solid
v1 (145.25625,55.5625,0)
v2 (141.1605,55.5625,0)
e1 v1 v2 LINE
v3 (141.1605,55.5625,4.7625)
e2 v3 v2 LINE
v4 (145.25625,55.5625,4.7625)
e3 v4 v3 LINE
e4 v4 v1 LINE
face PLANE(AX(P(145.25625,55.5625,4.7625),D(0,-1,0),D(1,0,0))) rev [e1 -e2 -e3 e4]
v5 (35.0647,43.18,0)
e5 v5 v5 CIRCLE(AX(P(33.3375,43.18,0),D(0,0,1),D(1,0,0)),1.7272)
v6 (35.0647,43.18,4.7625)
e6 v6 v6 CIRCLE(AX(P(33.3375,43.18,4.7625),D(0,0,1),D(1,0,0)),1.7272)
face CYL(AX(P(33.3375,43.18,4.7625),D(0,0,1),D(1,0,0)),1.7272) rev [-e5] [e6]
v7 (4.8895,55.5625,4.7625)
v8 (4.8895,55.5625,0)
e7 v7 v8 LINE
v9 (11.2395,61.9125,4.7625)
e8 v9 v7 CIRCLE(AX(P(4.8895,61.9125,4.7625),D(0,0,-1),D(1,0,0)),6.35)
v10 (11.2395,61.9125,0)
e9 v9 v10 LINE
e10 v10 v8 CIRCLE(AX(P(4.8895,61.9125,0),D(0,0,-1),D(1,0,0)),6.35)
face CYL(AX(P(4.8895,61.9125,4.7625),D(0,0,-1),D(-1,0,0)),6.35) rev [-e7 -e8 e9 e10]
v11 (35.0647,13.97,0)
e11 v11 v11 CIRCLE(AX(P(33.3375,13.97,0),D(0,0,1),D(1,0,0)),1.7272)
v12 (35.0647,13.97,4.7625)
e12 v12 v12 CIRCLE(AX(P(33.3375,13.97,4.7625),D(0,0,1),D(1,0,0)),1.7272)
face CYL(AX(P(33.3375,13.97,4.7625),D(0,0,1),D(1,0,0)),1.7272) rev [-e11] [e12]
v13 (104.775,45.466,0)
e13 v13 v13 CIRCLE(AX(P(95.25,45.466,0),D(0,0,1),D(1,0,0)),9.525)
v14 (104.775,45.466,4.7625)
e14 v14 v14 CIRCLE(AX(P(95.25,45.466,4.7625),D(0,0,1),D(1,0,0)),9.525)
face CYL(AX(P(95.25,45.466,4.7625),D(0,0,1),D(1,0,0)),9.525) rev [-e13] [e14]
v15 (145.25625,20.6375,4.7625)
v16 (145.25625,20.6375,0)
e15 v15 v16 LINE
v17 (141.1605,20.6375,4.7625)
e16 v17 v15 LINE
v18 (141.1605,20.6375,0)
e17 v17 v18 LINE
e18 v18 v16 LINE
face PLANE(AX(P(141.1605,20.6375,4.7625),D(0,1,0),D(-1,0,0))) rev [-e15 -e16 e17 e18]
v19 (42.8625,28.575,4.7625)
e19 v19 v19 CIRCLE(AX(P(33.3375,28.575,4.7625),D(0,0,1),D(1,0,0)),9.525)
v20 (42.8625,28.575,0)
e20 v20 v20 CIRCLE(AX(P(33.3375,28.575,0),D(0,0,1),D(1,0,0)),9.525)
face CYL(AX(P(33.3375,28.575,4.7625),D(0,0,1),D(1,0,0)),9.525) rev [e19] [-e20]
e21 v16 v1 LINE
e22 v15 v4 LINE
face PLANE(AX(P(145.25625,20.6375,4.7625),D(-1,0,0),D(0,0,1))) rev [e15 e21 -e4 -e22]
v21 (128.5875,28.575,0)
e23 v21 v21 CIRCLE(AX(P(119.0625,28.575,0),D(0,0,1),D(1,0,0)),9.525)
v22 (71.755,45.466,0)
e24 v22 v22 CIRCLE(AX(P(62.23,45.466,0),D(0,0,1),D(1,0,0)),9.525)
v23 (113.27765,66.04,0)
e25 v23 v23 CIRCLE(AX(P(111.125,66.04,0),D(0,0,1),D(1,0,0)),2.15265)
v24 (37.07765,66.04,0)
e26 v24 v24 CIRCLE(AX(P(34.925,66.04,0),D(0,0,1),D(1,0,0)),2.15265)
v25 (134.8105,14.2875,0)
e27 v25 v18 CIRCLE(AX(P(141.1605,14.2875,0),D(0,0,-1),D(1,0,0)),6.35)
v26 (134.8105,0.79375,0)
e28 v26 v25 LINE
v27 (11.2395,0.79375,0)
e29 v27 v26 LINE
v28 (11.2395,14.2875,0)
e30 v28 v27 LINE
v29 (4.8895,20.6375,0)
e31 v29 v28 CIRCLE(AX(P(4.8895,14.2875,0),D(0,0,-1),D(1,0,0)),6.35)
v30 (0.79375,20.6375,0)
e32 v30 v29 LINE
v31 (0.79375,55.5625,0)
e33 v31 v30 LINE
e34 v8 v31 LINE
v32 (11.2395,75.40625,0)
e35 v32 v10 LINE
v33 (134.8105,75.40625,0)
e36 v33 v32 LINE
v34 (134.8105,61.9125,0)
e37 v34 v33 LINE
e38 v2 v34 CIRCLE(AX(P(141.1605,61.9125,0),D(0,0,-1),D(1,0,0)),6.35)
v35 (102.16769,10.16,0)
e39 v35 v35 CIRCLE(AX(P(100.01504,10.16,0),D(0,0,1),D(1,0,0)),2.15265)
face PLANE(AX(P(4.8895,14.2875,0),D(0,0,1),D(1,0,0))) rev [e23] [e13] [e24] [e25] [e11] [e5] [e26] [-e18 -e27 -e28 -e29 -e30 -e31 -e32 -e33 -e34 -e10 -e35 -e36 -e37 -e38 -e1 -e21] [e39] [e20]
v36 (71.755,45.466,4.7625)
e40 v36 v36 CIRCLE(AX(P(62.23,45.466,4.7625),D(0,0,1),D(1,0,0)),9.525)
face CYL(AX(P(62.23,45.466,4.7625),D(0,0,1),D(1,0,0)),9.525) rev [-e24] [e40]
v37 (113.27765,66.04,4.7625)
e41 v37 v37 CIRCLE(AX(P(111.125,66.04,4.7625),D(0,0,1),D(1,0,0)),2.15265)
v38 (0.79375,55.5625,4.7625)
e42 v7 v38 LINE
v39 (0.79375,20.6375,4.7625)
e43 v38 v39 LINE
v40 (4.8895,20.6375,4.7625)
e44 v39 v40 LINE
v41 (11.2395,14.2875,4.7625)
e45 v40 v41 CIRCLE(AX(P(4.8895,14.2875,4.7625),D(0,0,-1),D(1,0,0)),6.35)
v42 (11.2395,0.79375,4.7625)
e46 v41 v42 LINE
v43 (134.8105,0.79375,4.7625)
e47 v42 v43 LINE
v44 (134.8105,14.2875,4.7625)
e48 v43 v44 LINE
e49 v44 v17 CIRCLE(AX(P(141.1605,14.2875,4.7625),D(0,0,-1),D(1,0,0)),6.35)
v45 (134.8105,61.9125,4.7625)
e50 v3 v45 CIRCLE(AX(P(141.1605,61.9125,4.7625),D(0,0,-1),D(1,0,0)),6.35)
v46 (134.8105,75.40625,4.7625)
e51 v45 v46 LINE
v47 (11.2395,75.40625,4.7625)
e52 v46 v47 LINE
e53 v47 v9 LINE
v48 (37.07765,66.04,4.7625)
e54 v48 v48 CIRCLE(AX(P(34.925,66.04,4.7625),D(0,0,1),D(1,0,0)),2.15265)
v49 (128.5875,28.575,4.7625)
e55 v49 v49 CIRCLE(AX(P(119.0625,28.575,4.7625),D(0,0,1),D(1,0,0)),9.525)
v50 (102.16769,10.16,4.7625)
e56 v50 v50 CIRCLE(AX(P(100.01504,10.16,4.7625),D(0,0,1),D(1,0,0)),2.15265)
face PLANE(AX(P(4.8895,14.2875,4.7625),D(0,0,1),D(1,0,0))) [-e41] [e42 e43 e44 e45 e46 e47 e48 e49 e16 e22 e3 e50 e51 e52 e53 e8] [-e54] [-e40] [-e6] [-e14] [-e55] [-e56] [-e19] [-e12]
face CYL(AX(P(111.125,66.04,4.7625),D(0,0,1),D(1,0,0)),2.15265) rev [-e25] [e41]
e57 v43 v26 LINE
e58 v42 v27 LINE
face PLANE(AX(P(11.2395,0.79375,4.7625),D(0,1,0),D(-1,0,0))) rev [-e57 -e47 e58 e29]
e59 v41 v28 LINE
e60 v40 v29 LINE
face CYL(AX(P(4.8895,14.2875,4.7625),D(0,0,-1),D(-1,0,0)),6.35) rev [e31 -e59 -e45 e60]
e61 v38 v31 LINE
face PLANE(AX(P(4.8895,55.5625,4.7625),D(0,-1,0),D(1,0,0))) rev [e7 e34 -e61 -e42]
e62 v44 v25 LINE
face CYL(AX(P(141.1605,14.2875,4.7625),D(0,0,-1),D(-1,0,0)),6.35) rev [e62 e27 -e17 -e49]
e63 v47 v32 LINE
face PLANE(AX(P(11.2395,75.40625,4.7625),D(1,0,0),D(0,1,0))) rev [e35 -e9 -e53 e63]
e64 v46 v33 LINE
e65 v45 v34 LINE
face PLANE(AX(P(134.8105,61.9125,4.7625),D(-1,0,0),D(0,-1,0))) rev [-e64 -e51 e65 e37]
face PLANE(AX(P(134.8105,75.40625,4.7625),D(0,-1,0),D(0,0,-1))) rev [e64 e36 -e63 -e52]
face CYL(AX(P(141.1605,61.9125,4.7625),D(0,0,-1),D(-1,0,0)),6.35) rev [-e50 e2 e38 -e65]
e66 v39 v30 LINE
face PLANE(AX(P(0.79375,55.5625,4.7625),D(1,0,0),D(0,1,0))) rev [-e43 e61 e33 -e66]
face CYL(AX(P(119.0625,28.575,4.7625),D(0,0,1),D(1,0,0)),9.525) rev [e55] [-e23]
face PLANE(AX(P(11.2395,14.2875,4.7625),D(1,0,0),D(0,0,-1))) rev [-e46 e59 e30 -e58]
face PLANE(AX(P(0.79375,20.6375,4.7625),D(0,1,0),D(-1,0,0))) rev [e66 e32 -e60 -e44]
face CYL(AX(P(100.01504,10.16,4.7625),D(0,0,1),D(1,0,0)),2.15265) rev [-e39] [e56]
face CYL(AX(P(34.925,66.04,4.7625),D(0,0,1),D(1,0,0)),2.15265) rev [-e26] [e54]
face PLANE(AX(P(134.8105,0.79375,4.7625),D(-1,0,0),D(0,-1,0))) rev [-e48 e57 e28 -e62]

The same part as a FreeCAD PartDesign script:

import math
import FreeCAD as App
import Part
import Sketcher
from FreeCAD import Vector
Q = App.Units.Quantity

doc = App.newDocument("Part")
body = doc.addObject("PartDesign::Body", "Body")

# Sketch on XY plane
sketch1 = body.newObject("Sketcher::SketchObject", "Sketch")
sketch1.AttachmentSupport = (doc.getObject("XY_Plane"), [""])
sketch1.MapMode = "FlatFace"
sketch1.addGeometry(Part.LineSegment(Vector(11.2, 14.3, 0), Vector(11.2, 0.8, 0)), False)
sketch1.addGeometry(Part.LineSegment(Vector(11.2, 0.8, 0), Vector(134.8, 0.8, 0)), False)
sketch1.addGeometry(Part.LineSegment(Vector(134.8, 0.8, 0), Vector(134.8, 14.3, 0)), False)
sketch1.addGeometry(Part.ArcOfCircle(Part.Circle(Vector(141.2, 14.3, 0), Vector(0, 0, 1), 6.3), math.radians(90), math.radians(180)), False)
sketch1.addGeometry(Part.LineSegment(Vector(141.2, 20.6, 0), Vector(145.3, 20.6, 0)), False)
sketch1.addGeometry(Part.LineSegment(Vector(145.3, 20.6, 0), Vector(145.3, 55.6, 0)), False)
sketch1.addGeometry(Part.LineSegment(Vector(145.3, 55.6, 0), Vector(141.2, 55.6, 0)), False)
sketch1.addGeometry(Part.ArcOfCircle(Part.Circle(Vector(141.2, 61.9, 0), Vector(0, 0, 1), 6.3), math.radians(180), math.radians(270)), False)
sketch1.addGeometry(Part.LineSegment(Vector(134.8, 61.9, 0), Vector(134.8, 75.4, 0)), False)
sketch1.addGeometry(Part.LineSegment(Vector(134.8, 75.4, 0), Vector(11.2, 75.4, 0)), False)
sketch1.addGeometry(Part.LineSegment(Vector(11.2, 75.4, 0), Vector(11.2, 61.9, 0)), False)
sketch1.addGeometry(Part.ArcOfCircle(Part.Circle(Vector(4.9, 61.9, 0), Vector(0, 0, 1), 6.3), math.radians(-90), math.radians(0)), False)
sketch1.addGeometry(Part.LineSegment(Vector(4.9, 55.6, 0), Vector(0.8, 55.6, 0)), False)
sketch1.addGeometry(Part.LineSegment(Vector(0.8, 55.6, 0), Vector(0.8, 20.6, 0)), False)
sketch1.addGeometry(Part.LineSegment(Vector(0.8, 20.6, 0), Vector(4.9, 20.6, 0)), False)
sketch1.addGeometry(Part.ArcOfCircle(Part.Circle(Vector(4.9, 14.3, 0), Vector(0, 0, 1), 6.3), math.radians(0), math.radians(90)), False)
sketch1.addConstraint(Sketcher.Constraint("Coincident", 0, 2, 1, 1))
sketch1.addConstraint(Sketcher.Constraint("Coincident", 1, 2, 2, 1))
sketch1.addConstraint(Sketcher.Constraint("Tangent", 2, 2, 3, 2))
sketch1.addConstraint(Sketcher.Constraint("Tangent", 3, 1, 4, 1))
sketch1.addConstraint(Sketcher.Constraint("Coincident", 4, 2, 5, 1))
sketch1.addConstraint(Sketcher.Constraint("Coincident", 5, 2, 6, 1))
sketch1.addConstraint(Sketcher.Constraint("Tangent", 6, 2, 7, 2))
sketch1.addConstraint(Sketcher.Constraint("Tangent", 7, 1, 8, 1))
sketch1.addConstraint(Sketcher.Constraint("Coincident", 8, 2, 9, 1))
sketch1.addConstraint(Sketcher.Constraint("Coincident", 9, 2, 10, 1))
sketch1.addConstraint(Sketcher.Constraint("Tangent", 10, 2, 11, 2))
sketch1.addConstraint(Sketcher.Constraint("Tangent", 11, 1, 12, 1))
sketch1.addConstraint(Sketcher.Constraint("Coincident", 12, 2, 13, 1))
sketch1.addConstraint(Sketcher.Constraint("Coincident", 13, 2, 14, 1))
sketch1.addConstraint(Sketcher.Constraint("Tangent", 14, 2, 15, 2))
sketch1.addConstraint(Sketcher.Constraint("Tangent", 15, 1, 0, 1))
sketch1.addConstraint(Sketcher.Constraint("Vertical", 0))
sketch1.addConstraint(Sketcher.Constraint("Horizontal", 1))
sketch1.addConstraint(Sketcher.Constraint("Vertical", 2))
sketch1.addConstraint(Sketcher.Constraint("Horizontal", 4))
sketch1.addConstraint(Sketcher.Constraint("Vertical", 5))
sketch1.addConstraint(Sketcher.Constraint("Horizontal", 6))
sketch1.addConstraint(Sketcher.Constraint("Vertical", 8))
sketch1.addConstraint(Sketcher.Constraint("Horizontal", 9))
sketch1.addConstraint(Sketcher.Constraint("Vertical", 10))
sketch1.addConstraint(Sketcher.Constraint("Horizontal", 12))
sketch1.addConstraint(Sketcher.Constraint("Vertical", 13))
sketch1.addConstraint(Sketcher.Constraint("Horizontal", 14))
sketch1.addConstraint(Sketcher.Constraint("Equal", 3, 7))
sketch1.addConstraint(Sketcher.Constraint("Equal", 7, 11))
sketch1.addConstraint(Sketcher.Constraint("Equal", 11, 15))
sketch1.addConstraint(Sketcher.Constraint("Horizontal", 7, 3, 11, 3))
sketch1.addConstraint(Sketcher.Constraint("Horizontal", 3, 3, 15, 3))
sketch1.addConstraint(Sketcher.Constraint("Vertical", 3, 3, 7, 3))
sketch1.addConstraint(Sketcher.Constraint("Vertical", 11, 3, 15, 3))
sketch1.addConstraint(Sketcher.Constraint("Equal", 6, 12))
sketch1.addConstraint(Sketcher.Constraint("Equal", 2, 8))
sketch1.addConstraint(Sketcher.Constraint("Radius", 3, Q("0.25 in")))
sketch1.addConstraint(Sketcher.Constraint("DistanceX", 1, 1, 1, 2, Q("4.865 in")))
sketch1.addConstraint(Sketcher.Constraint("DistanceY", 0, 2, 0, 1, Q("0.53125 in")))
sketch1.addConstraint(Sketcher.Constraint("DistanceY", 5, 1, 5, 2, Q("1.375 in")))
sketch1.addConstraint(Sketcher.Constraint("DistanceY", -1, 1, 3, 3, Q("0.5625 in")))
sketch1.addConstraint(Sketcher.Constraint("DistanceX", -1, 1, 4, 2, Q("5.71875 in")))
sketch1.addConstraint(Sketcher.Constraint("DistanceX", -1, 1, 12, 2, Q("0.03125 in")))
pad1 = body.newObject("PartDesign::Pad", "Pad")
pad1.Profile = sketch1
pad1.Length = Q("0.1875 in")

# Sketch on XY plane
sketch2 = body.newObject("Sketcher::SketchObject", "Sketch001")
sketch2.AttachmentSupport = (doc.getObject("XY_Plane"), [""])
sketch2.MapMode = "FlatFace"
sketch2.AttachmentOffset = App.Placement(Vector(0, 0, 0.1875 * 25.4), App.Rotation())
sketch2.addGeometry(Part.Circle(Vector(33.3, 43.2, 0), Vector(0, 0, 1), 1.7), False)
sketch2.addGeometry(Part.Circle(Vector(33.3, 14, 0), Vector(0, 0, 1), 1.7), False)
sketch2.addConstraint(Sketcher.Constraint("Equal", 0, 1))
sketch2.addConstraint(Sketcher.Constraint("Vertical", 0, 3, 1, 3))
sketch2.addConstraint(Sketcher.Constraint("Diameter", 0, Q("0.136 in")))
sketch2.addConstraint(Sketcher.Constraint("DistanceY", -1, 1, 0, 3, Q("1.7 in")))
sketch2.addConstraint(Sketcher.Constraint("DistanceY", -1, 1, 1, 3, Q("0.55 in")))
sketch2.addConstraint(Sketcher.Constraint("DistanceX", -1, 1, 0, 3, Q("1.3125 in")))
doc.recompute()
hole = body.newObject("PartDesign::Hole", "Hole")
hole.Profile = sketch2
hole.ThreadType = "None"
hole.Diameter = Q("0.136 in")
hole.DepthType = "ThroughAll"

# Sketch on XY plane
sketch3 = body.newObject("Sketcher::SketchObject", "Sketch002")
sketch3.AttachmentSupport = (doc.getObject("XY_Plane"), [""])
sketch3.MapMode = "FlatFace"
sketch3.AttachmentOffset = App.Placement(Vector(0, 0, 0.1875 * 25.4), App.Rotation())
sketch3.addGeometry(Part.Circle(Vector(34.9, 66, 0), Vector(0, 0, 1), 2.2), False)
sketch3.addGeometry(Part.Circle(Vector(111.1, 66, 0), Vector(0, 0, 1), 2.2), False)
sketch3.addGeometry(Part.Circle(Vector(100, 10.2, 0), Vector(0, 0, 1), 2.2), False)
sketch3.addConstraint(Sketcher.Constraint("Equal", 0, 1))
sketch3.addConstraint(Sketcher.Constraint("Equal", 1, 2))
sketch3.addConstraint(Sketcher.Constraint("Horizontal", 0, 3, 1, 3))
sketch3.addConstraint(Sketcher.Constraint("DistanceX", 0, 3, 1, 3, Q("3 in")))
sketch3.addConstraint(Sketcher.Constraint("Diameter", 0, Q("0.1695 in")))
sketch3.addConstraint(Sketcher.Constraint("DistanceY", -1, 1, 0, 3, Q("2.6 in")))
sketch3.addConstraint(Sketcher.Constraint("DistanceY", -1, 1, 2, 3, Q("0.4 in")))
sketch3.addConstraint(Sketcher.Constraint("DistanceX", -1, 1, 0, 3, Q("1.375 in")))
sketch3.addConstraint(Sketcher.Constraint("DistanceX", -1, 1, 2, 3, Q("3.9376 in")))
doc.recompute()
hole2 = body.newObject("PartDesign::Hole", "Hole001")
hole2.Profile = sketch3
hole2.ThreadType = "None"
hole2.Diameter = Q("0.1695 in")
hole2.DepthType = "ThroughAll"

# Sketch on XY plane
sketch4 = body.newObject("Sketcher::SketchObject", "Sketch003")
sketch4.AttachmentSupport = (doc.getObject("XY_Plane"), [""])
sketch4.MapMode = "FlatFace"
sketch4.AttachmentOffset = App.Placement(Vector(0, 0, 0.1875 * 25.4), App.Rotation())
sketch4.addGeometry(Part.Circle(Vector(119, 29, 0), Vector(0, 0, 1), 10), False)
sketch4.addGeometry(Part.Circle(Vector(95, 45, 0), Vector(0, 0, 1), 10), False)
sketch4.addGeometry(Part.Circle(Vector(62, 45, 0), Vector(0, 0, 1), 10), False)
sketch4.addGeometry(Part.Circle(Vector(33, 29, 0), Vector(0, 0, 1), 10), False)
sketch4.addConstraint(Sketcher.Constraint("Equal", 0, 1))
sketch4.addConstraint(Sketcher.Constraint("Equal", 1, 2))
sketch4.addConstraint(Sketcher.Constraint("Equal", 2, 3))
sketch4.addConstraint(Sketcher.Constraint("Horizontal", 1, 3, 2, 3))
sketch4.addConstraint(Sketcher.Constraint("Horizontal", 0, 3, 3, 3))
sketch4.addConstraint(Sketcher.Constraint("Diameter", 0, Q("0.75 in")))
sketch4.addConstraint(Sketcher.Constraint("DistanceX", 2, 3, 1, 3, Q("1.3 in")))
sketch4.addConstraint(Sketcher.Constraint("DistanceX", -1, 1, 1, 3, Q("3.75 in")))
sketch4.addConstraint(Sketcher.Constraint("DistanceY", -1, 1, 1, 3, Q("1.79 in")))
sketch4.addConstraint(Sketcher.Constraint("DistanceX", -1, 1, 0, 3, Q("4.6875 in")))
sketch4.addConstraint(Sketcher.Constraint("DistanceY", -1, 1, 0, 3, Q("1.125 in")))
sketch4.addConstraint(Sketcher.Constraint("DistanceX", -1, 1, 3, 3, Q("1.3125 in")))
doc.recompute()
hole3 = body.newObject("PartDesign::Hole", "Hole002")
hole3.Profile = sketch4
hole3.ThreadType = "None"
hole3.Diameter = Q("0.75 in")
hole3.DepthType = "ThroughAll"

doc.recompute()
